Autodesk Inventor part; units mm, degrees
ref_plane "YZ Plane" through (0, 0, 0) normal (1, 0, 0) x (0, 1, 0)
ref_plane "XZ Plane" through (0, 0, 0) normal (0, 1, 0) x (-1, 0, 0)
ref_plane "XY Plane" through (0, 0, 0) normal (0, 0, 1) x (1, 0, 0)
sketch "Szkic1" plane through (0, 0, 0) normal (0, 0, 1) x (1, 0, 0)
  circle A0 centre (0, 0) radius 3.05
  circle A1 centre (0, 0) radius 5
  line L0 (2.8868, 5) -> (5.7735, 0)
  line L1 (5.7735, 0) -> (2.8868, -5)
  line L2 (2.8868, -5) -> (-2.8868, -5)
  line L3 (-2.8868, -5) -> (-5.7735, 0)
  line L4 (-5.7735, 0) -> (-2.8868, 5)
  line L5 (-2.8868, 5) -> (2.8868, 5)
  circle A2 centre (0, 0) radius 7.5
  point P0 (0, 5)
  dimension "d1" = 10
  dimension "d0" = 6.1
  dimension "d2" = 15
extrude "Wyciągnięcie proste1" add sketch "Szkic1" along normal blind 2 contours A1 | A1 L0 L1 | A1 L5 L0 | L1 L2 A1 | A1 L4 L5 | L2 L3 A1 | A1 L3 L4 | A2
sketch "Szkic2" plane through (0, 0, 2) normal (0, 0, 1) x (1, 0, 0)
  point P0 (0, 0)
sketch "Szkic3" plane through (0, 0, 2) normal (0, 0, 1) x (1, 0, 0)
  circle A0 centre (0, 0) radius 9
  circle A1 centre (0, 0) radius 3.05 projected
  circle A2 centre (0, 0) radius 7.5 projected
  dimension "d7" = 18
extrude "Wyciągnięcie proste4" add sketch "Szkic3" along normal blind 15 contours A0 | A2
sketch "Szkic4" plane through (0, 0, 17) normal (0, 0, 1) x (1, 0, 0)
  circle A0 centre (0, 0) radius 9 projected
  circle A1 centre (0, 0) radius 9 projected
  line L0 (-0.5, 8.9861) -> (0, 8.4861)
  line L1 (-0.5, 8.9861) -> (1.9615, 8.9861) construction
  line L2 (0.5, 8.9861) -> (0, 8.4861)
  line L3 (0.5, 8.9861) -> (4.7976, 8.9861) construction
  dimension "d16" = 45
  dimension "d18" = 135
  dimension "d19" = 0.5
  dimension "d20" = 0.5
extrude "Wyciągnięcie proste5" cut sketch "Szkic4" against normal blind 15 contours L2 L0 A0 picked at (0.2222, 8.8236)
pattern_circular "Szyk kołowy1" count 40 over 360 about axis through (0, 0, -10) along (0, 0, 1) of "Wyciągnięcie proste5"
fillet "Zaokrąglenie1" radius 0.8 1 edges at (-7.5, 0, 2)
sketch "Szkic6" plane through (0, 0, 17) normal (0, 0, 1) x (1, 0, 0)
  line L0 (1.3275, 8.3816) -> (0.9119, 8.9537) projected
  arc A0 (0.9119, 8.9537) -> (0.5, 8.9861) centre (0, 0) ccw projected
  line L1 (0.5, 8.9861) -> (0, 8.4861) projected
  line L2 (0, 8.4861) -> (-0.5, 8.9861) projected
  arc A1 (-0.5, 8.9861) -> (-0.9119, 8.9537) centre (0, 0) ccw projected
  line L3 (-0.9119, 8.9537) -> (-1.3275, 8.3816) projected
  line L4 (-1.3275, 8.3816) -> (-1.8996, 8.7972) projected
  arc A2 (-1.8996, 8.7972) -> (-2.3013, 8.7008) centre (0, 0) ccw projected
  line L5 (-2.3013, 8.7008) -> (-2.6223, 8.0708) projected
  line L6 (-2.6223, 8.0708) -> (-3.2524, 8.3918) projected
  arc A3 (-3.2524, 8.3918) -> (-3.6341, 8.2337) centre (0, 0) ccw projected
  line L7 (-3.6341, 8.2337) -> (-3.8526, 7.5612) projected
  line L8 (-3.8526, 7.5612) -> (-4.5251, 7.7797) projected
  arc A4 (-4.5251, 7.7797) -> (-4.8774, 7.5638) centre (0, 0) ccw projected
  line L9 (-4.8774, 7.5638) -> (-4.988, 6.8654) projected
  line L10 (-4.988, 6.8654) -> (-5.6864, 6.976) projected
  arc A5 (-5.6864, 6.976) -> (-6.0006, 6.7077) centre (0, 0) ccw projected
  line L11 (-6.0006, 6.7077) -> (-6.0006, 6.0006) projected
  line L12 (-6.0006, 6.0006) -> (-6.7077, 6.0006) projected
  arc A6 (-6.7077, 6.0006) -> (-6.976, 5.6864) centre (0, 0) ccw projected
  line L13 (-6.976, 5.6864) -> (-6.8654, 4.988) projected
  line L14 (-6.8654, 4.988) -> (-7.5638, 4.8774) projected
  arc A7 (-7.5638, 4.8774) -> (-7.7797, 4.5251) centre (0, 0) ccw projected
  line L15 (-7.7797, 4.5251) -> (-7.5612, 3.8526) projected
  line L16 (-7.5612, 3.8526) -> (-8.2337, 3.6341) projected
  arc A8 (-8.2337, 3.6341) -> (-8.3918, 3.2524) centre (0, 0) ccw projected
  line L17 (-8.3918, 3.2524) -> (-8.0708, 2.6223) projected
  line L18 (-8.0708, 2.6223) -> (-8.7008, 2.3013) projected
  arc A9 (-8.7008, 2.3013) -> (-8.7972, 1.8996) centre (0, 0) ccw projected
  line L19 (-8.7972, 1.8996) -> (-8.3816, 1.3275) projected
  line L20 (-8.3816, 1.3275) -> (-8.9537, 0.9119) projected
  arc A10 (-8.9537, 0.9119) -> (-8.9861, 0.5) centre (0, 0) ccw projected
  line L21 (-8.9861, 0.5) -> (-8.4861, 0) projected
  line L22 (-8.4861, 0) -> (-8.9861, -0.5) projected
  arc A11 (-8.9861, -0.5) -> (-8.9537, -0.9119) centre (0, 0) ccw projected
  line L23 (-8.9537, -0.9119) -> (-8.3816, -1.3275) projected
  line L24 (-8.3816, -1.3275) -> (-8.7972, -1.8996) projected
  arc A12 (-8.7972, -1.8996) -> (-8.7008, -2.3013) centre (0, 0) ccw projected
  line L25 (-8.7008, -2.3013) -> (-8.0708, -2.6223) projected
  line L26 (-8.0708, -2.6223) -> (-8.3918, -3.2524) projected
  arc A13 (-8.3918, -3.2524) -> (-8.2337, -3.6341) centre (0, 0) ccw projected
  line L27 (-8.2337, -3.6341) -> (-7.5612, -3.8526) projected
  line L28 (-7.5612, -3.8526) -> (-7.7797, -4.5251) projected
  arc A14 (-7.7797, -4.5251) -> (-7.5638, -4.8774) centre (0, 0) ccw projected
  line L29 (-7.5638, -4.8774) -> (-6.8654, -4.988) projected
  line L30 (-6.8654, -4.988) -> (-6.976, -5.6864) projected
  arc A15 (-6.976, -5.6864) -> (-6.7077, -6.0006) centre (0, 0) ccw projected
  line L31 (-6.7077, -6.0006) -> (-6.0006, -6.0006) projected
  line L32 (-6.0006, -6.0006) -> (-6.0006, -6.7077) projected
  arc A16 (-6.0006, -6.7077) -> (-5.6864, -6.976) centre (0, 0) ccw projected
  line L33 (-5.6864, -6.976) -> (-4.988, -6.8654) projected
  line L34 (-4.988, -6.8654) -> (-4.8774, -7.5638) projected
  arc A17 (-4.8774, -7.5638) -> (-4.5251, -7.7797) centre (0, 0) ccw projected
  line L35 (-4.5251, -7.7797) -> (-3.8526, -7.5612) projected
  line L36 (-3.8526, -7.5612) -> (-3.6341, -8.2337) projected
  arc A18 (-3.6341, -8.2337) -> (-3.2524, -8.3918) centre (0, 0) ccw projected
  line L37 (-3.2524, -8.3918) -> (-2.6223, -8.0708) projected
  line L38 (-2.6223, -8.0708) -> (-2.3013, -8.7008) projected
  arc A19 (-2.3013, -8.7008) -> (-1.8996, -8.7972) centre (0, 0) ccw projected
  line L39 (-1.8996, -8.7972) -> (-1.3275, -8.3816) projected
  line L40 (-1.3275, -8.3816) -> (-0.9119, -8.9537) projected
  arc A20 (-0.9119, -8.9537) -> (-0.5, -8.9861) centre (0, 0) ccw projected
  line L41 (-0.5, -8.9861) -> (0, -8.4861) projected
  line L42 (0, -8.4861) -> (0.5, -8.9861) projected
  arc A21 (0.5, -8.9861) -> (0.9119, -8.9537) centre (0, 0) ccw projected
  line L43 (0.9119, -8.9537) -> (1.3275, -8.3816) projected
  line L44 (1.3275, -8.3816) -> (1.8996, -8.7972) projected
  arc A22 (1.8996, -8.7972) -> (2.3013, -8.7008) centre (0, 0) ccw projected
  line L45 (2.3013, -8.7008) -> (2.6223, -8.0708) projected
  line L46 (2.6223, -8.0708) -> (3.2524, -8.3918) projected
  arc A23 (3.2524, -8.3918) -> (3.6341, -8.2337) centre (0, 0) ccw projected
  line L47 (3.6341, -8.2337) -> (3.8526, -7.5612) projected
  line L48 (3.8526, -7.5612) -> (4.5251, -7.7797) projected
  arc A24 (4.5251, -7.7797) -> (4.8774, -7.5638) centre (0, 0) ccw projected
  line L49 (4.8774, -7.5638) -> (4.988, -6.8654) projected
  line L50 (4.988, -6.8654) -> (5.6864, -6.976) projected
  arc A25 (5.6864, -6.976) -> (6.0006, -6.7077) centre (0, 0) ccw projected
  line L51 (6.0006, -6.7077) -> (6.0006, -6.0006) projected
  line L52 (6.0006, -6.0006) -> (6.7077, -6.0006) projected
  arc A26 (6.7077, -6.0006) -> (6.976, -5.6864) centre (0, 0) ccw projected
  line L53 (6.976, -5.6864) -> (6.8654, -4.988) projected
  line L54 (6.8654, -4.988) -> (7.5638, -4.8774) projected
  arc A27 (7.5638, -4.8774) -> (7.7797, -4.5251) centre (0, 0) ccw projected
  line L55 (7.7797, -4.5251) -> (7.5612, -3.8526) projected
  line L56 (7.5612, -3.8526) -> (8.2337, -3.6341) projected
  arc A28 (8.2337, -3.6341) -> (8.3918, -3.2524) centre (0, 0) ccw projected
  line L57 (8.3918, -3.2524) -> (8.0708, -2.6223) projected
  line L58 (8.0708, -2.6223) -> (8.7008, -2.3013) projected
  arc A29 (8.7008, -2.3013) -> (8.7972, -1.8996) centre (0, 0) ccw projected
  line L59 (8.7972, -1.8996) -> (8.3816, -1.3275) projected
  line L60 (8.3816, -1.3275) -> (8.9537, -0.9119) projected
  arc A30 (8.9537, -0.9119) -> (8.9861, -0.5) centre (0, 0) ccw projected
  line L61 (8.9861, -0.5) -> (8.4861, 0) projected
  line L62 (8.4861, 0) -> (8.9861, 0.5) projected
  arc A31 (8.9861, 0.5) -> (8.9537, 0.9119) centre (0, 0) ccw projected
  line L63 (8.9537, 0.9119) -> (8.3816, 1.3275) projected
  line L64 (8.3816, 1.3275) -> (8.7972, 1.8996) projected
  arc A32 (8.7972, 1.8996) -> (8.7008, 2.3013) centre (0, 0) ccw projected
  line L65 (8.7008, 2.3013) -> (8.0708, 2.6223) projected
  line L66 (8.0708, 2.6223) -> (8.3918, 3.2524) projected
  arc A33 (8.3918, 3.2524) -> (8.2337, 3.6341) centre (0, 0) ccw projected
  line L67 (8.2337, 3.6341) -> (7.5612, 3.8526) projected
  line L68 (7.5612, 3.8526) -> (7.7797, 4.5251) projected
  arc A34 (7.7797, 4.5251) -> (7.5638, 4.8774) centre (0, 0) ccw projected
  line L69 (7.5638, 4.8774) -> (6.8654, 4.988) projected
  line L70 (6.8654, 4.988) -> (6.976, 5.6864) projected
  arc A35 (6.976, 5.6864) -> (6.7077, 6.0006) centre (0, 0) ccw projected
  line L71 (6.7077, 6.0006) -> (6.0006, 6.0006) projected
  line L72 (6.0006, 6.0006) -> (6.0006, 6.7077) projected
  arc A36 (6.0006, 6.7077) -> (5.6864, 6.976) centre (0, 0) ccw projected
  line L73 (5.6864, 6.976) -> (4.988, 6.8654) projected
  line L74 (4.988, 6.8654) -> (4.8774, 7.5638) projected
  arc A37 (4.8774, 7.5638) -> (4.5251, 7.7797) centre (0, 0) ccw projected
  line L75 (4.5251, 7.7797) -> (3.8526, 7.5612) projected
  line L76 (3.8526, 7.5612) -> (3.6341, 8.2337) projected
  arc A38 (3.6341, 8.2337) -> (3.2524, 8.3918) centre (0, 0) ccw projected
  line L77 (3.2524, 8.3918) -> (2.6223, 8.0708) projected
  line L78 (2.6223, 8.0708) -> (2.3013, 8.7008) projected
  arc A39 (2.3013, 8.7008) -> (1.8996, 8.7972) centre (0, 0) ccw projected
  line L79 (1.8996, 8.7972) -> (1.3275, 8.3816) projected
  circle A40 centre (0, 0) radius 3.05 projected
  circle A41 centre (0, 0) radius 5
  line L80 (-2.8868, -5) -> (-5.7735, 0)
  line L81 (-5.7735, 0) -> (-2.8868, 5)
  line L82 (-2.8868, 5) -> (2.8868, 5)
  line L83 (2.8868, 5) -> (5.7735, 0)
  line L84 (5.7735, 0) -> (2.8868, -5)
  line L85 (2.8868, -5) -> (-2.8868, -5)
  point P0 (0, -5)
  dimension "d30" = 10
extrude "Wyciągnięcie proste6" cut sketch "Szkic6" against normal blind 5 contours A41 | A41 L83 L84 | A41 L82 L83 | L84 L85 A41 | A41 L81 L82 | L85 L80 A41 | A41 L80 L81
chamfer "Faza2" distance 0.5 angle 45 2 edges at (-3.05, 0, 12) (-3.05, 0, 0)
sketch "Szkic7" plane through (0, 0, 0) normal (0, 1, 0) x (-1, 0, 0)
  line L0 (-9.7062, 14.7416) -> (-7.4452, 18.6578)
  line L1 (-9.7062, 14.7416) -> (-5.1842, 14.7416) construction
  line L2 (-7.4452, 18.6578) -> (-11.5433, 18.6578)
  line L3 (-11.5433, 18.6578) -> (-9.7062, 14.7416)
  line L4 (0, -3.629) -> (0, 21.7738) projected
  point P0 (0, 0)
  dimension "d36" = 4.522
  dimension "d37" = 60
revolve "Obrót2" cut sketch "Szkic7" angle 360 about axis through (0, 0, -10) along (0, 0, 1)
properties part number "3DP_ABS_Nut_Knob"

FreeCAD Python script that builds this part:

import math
import FreeCAD as App
import Part
import Sketcher
from FreeCAD import Vector
Q = App.Units.Quantity


def edges_at(feature, points):
    """Names of the edges that pass closest to the given points."""
    edges = feature.Shape.Edges
    near = lambda p: min(range(len(edges)), key=lambda i: edges[i].distToShape(Part.Vertex(*p))[0])
    return sorted({f"Edge{near(p) + 1}" for p in points})

doc = App.newDocument("Part")
body = doc.addObject("PartDesign::Body", "Body")

# Sketch on XY plane
sketch1 = body.newObject("Sketcher::SketchObject", "Sketch")
sketch1.AttachmentSupport = (doc.getObject("XY_Plane"), [""])
sketch1.MapMode = "FlatFace"
sketch1.addGeometry([
    Part.Circle(Vector(0, 0, 0), Vector(0, 0, 1), 7.5),
    Part.Circle(Vector(0, 0, 0), Vector(0, 0, 1), 3),
], False)
sketch1.addConstraint([
    Sketcher.Constraint("Coincident", 0, 3, -1, 1),
    Sketcher.Constraint("Coincident", 1, 3, -1, 1),
    Sketcher.Constraint("Diameter", 0, Q("15 mm")),
    Sketcher.Constraint("Diameter", 1, Q("6.1 mm")),
])
pad1 = body.newObject("PartDesign::Pad", "Pad")
pad1.Profile = sketch1
pad1.Length = 2

# Sketch on XY plane
sketch2 = body.newObject("Sketcher::SketchObject", "Sketch001")
sketch2.AttachmentSupport = (doc.getObject("XY_Plane"), [""])
sketch2.MapMode = "FlatFace"
sketch2.AttachmentOffset = App.Placement(Vector(0, 0, 2), App.Rotation())
sketch2.addGeometry([
    Part.Circle(Vector(0, 0, 0), Vector(0, 0, 1), 9),
    Part.Circle(Vector(0, 0, 0), Vector(0, 0, 1), 3),
], False)
sketch2.addConstraint([
    Sketcher.Constraint("Coincident", 0, 3, -1, 1),
    Sketcher.Constraint("Coincident", 1, 3, -1, 1),
    Sketcher.Constraint("Diameter", 0, Q("18 mm")),
    Sketcher.Constraint("Diameter", 1, Q("6.1 mm")),
])
pad2 = body.newObject("PartDesign::Pad", "Pad001")
pad2.Profile = sketch2
pad2.Length = 15

# Sketch on XY plane
sketch3 = body.newObject("Sketcher::SketchObject", "Sketch002")
sketch3.AttachmentSupport = (doc.getObject("XY_Plane"), [""])
sketch3.MapMode = "FlatFace"
sketch3.AttachmentOffset = App.Placement(Vector(0, 0, 17), App.Rotation())
sketch3.addGeometry([
    Part.LineSegment(Vector(0, 8.5, 0), Vector(0.5, 9, 0)),
    Part.ArcOfCircle(Part.Circle(Vector(0, 0, 0), Vector(0, 0, 1), 9), math.radians(86.82), math.radians(93.18)),
    Part.LineSegment(Vector(-0.5, 9, 0), Vector(0, 8.5, 0)),
], False)
sketch3.addConstraint([
    Sketcher.Constraint("Coincident", 0, 2, 1, 1),
    Sketcher.Constraint("Coincident", 1, 2, 2, 1),
    Sketcher.Constraint("Coincident", 2, 2, 0, 1),
    Sketcher.Constraint("Coincident", 1, 3, -1, 1),
    Sketcher.Constraint("PointOnObject", 2, 2, -2),
    Sketcher.Constraint("Perpendicular", 0, 2),
    Sketcher.Constraint("Horizontal", 0, 2, 1, 2),
    Sketcher.Constraint("Radius", 1, Q("9 mm")),
    Sketcher.Constraint("DistanceX", -1, 1, 0, 2, Q("0.5 mm")),
])
pocket1 = body.newObject("PartDesign::Pocket", "Pocket")
pocket1.Profile = sketch3
pocket1.Length = 15
doc.recompute()

polarpattern = body.newObject("PartDesign::PolarPattern", "PolarPattern")
polarpattern.Originals = [pocket1]
polarpattern.Axis = (doc.getObject("Z_Axis"), [""])
polarpattern.Angle = 360
polarpattern.Occurrences = 40
body.Tip = polarpattern
doc.recompute()

fillet = body.newObject("PartDesign::Fillet", "Fillet")
fillet.Base = (polarpattern, edges_at(polarpattern, [(-7.5, 0, 2)]))
fillet.Radius = 0.8

# Sketch on XY plane
sketch4 = body.newObject("Sketcher::SketchObject", "Sketch003")
sketch4.AttachmentSupport = (doc.getObject("XY_Plane"), [""])
sketch4.MapMode = "FlatFace"
sketch4.AttachmentOffset = App.Placement(Vector(0, 0, 17), App.Rotation())
sketch4.addGeometry([
    Part.LineSegment(Vector(5.8, 0, 0), Vector(2.9, 5, 0)),  # 0
    Part.LineSegment(Vector(2.9, 5, 0), Vector(-2.9, 5, 0)),  # 1
    Part.LineSegment(Vector(-2.9, 5, 0), Vector(-5.8, 0, 0)),  # 2
    Part.LineSegment(Vector(-5.8, 0, 0), Vector(-2.9, -5, 0)),  # 3
    Part.LineSegment(Vector(-2.9, -5, 0), Vector(2.9, -5, 0)),  # 4
    Part.LineSegment(Vector(2.9, -5, 0), Vector(5.8, 0, 0)),  # 5
    Part.Circle(Vector(0, 0, 0), Vector(0, 0, 1), 3),  # 6
], False)
sketch4.addConstraint([
    Sketcher.Constraint("Coincident", 0, 2, 1, 1),
    Sketcher.Constraint("Coincident", 1, 2, 2, 1),
    Sketcher.Constraint("Coincident", 2, 2, 3, 1),
    Sketcher.Constraint("Coincident", 3, 2, 4, 1),
    Sketcher.Constraint("Coincident", 4, 2, 5, 1),
    Sketcher.Constraint("Coincident", 5, 2, 0, 1),
    Sketcher.Constraint("Horizontal", 1),
    Sketcher.Constraint("Horizontal", 4),
    Sketcher.Constraint("Coincident", 6, 3, -1, 1),
    Sketcher.Constraint("Symmetric", 0, 2, 3, 2, -1, 1),
    Sketcher.Constraint("Symmetric", 2, 2, 5, 2, -1, 1),
    Sketcher.Constraint("PointOnObject", 2, 2, -1),
    Sketcher.Constraint("Parallel", 2, 5),
    Sketcher.Constraint("Vertical", 1, 2, 3, 2),
    Sketcher.Constraint("DistanceY", 3, 2, 1, 2, Q("10 mm")),
    Sketcher.Constraint("Diameter", 6, Q("6.1 mm")),
    Sketcher.Constraint("Angle", 0, Q("119.9996 deg")),
    Sketcher.Constraint("DistanceX", 1, 2, 1, 1, Q("5.7736 mm")),
])
pocket2 = body.newObject("PartDesign::Pocket", "Pocket001")
pocket2.Profile = sketch4
pocket2.Length = 5
doc.recompute()

chamfer = body.newObject("PartDesign::Chamfer", "Chamfer")
chamfer.Base = (pocket2, edges_at(pocket2, [(-3.05, 0, 12), (-3.05, 0, 0)]))
chamfer.Size = 0.5

# Sketch on XZ plane
sketch5 = body.newObject("Sketcher::SketchObject", "Sketch004")
sketch5.AttachmentSupport = (doc.getObject("XZ_Plane"), [""])
sketch5.MapMode = "FlatFace"
sketch5.addGeometry([
    Part.LineSegment(Vector(11.5, 18.7, 0), Vector(9.7, 14.7, 0)),
    Part.LineSegment(Vector(9.7, 14.7, 0), Vector(7.4, 18.7, 0)),
    Part.LineSegment(Vector(7.4, 18.7, 0), Vector(11.5, 18.7, 0)),
], False)
sketch5.addConstraint([
    Sketcher.Constraint("Coincident", 0, 2, 1, 1),
    Sketcher.Constraint("Coincident", 1, 2, 2, 1),
    Sketcher.Constraint("Coincident", 2, 2, 0, 1),
    Sketcher.Constraint("Horizontal", 2),
    Sketcher.Constraint("Angle", 1, Q("119.9998 deg")),
    Sketcher.Constraint("Distance", 1, Q("4.522 mm")),
    Sketcher.Constraint("DistanceX", 2, 1, 2, 2, Q("4.098 mm")),
    Sketcher.Constraint("DistanceX", -1, 1, 0, 2, Q("9.7062 mm")),
    Sketcher.Constraint("DistanceY", -1, 1, 0, 2, Q("14.7416 mm")),
])
groove = body.newObject("PartDesign::Groove", "Groove")
groove.Profile = sketch5
groove.ReferenceAxis = (sketch5, ["V_Axis"])
groove.Angle = 360

doc.recompute()
